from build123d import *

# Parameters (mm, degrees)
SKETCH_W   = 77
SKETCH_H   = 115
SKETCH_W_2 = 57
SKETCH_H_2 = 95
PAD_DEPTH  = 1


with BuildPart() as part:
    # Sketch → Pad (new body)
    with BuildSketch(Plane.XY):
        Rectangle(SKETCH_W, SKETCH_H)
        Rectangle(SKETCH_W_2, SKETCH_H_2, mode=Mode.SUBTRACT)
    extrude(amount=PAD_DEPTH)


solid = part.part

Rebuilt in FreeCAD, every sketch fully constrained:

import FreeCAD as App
import Part
import Sketcher
from FreeCAD import Vector

doc = App.newDocument("Part")
body = doc.addObject("PartDesign::Body", "Body")

sketch1 = body.newObject("Sketcher::SketchObject", "Sketch")
sketch1.AttachmentSupport = (doc.getObject("XY_Plane"), [""])
sketch1.MapMode = "FlatFace"
sketch1.addGeometry(Part.LineSegment(Vector(-38.5, 57.5, 0), Vector(-38.5, -57.5, 0)), False)
sketch1.addGeometry(Part.LineSegment(Vector(-38.5, -57.5, 0), Vector(38.5, -57.5, 0)), False)
sketch1.addGeometry(Part.LineSegment(Vector(38.5, -57.5, 0), Vector(38.5, 57.5, 0)), False)
sketch1.addGeometry(Part.LineSegment(Vector(38.5, 57.5, 0), Vector(-38.5, 57.5, 0)), False)
sketch1.addGeometry(Part.LineSegment(Vector(28.5, -47.5, 0), Vector(-28.5, -47.5, 0)), False)
sketch1.addGeometry(Part.LineSegment(Vector(-28.5, -47.5, 0), Vector(-28.5, 47.5, 0)), False)
sketch1.addGeometry(Part.LineSegment(Vector(-28.5, 47.5, 0), Vector(28.5, 47.5, 0)), False)
sketch1.addGeometry(Part.LineSegment(Vector(28.5, 47.5, 0), Vector(28.5, -47.5, 0)), False)
sketch1.addConstraint(Sketcher.Constraint("Coincident", 0, 2, 1, 1))
sketch1.addConstraint(Sketcher.Constraint("Coincident", 1, 2, 2, 1))
sketch1.addConstraint(Sketcher.Constraint("Coincident", 2, 2, 3, 1))
sketch1.addConstraint(Sketcher.Constraint("Coincident", 3, 2, 0, 1))
sketch1.addConstraint(Sketcher.Constraint("Coincident", 4, 2, 5, 1))
sketch1.addConstraint(Sketcher.Constraint("Coincident", 5, 2, 6, 1))
sketch1.addConstraint(Sketcher.Constraint("Coincident", 6, 2, 7, 1))
sketch1.addConstraint(Sketcher.Constraint("Coincident", 7, 2, 4, 1))
sketch1.addConstraint(Sketcher.Constraint("Vertical", 0))
sketch1.addConstraint(Sketcher.Constraint("Horizontal", 1))
sketch1.addConstraint(Sketcher.Constraint("Vertical", 2))
sketch1.addConstraint(Sketcher.Constraint("Horizontal", 3))
sketch1.addConstraint(Sketcher.Constraint("Horizontal", 4))
sketch1.addConstraint(Sketcher.Constraint("Vertical", 5))
sketch1.addConstraint(Sketcher.Constraint("Horizontal", 6))
sketch1.addConstraint(Sketcher.Constraint("Vertical", 7))
sketch1.addConstraint(Sketcher.Constraint("Symmetric", 0, 2, 2, 2, -1, 1))
sketch1.addConstraint(Sketcher.Constraint("Symmetric", 4, 2, 6, 2, -1, 1))
sketch1.addConstraint(Sketcher.Constraint("DistanceX", 1, 1, 1, 2, 77.0))
sketch1.addConstraint(Sketcher.Constraint("DistanceX", 4, 2, 4, 1, 57.0))
sketch1.addConstraint(Sketcher.Constraint("DistanceY", 0, 2, 0, 1, 115.0))
sketch1.addConstraint(Sketcher.Constraint("DistanceY", 5, 1, 5, 2, 95.0))
pad1 = body.newObject("PartDesign::Pad", "Pad")
pad1.Profile = sketch1
pad1.Length = 1

doc.recompute()
